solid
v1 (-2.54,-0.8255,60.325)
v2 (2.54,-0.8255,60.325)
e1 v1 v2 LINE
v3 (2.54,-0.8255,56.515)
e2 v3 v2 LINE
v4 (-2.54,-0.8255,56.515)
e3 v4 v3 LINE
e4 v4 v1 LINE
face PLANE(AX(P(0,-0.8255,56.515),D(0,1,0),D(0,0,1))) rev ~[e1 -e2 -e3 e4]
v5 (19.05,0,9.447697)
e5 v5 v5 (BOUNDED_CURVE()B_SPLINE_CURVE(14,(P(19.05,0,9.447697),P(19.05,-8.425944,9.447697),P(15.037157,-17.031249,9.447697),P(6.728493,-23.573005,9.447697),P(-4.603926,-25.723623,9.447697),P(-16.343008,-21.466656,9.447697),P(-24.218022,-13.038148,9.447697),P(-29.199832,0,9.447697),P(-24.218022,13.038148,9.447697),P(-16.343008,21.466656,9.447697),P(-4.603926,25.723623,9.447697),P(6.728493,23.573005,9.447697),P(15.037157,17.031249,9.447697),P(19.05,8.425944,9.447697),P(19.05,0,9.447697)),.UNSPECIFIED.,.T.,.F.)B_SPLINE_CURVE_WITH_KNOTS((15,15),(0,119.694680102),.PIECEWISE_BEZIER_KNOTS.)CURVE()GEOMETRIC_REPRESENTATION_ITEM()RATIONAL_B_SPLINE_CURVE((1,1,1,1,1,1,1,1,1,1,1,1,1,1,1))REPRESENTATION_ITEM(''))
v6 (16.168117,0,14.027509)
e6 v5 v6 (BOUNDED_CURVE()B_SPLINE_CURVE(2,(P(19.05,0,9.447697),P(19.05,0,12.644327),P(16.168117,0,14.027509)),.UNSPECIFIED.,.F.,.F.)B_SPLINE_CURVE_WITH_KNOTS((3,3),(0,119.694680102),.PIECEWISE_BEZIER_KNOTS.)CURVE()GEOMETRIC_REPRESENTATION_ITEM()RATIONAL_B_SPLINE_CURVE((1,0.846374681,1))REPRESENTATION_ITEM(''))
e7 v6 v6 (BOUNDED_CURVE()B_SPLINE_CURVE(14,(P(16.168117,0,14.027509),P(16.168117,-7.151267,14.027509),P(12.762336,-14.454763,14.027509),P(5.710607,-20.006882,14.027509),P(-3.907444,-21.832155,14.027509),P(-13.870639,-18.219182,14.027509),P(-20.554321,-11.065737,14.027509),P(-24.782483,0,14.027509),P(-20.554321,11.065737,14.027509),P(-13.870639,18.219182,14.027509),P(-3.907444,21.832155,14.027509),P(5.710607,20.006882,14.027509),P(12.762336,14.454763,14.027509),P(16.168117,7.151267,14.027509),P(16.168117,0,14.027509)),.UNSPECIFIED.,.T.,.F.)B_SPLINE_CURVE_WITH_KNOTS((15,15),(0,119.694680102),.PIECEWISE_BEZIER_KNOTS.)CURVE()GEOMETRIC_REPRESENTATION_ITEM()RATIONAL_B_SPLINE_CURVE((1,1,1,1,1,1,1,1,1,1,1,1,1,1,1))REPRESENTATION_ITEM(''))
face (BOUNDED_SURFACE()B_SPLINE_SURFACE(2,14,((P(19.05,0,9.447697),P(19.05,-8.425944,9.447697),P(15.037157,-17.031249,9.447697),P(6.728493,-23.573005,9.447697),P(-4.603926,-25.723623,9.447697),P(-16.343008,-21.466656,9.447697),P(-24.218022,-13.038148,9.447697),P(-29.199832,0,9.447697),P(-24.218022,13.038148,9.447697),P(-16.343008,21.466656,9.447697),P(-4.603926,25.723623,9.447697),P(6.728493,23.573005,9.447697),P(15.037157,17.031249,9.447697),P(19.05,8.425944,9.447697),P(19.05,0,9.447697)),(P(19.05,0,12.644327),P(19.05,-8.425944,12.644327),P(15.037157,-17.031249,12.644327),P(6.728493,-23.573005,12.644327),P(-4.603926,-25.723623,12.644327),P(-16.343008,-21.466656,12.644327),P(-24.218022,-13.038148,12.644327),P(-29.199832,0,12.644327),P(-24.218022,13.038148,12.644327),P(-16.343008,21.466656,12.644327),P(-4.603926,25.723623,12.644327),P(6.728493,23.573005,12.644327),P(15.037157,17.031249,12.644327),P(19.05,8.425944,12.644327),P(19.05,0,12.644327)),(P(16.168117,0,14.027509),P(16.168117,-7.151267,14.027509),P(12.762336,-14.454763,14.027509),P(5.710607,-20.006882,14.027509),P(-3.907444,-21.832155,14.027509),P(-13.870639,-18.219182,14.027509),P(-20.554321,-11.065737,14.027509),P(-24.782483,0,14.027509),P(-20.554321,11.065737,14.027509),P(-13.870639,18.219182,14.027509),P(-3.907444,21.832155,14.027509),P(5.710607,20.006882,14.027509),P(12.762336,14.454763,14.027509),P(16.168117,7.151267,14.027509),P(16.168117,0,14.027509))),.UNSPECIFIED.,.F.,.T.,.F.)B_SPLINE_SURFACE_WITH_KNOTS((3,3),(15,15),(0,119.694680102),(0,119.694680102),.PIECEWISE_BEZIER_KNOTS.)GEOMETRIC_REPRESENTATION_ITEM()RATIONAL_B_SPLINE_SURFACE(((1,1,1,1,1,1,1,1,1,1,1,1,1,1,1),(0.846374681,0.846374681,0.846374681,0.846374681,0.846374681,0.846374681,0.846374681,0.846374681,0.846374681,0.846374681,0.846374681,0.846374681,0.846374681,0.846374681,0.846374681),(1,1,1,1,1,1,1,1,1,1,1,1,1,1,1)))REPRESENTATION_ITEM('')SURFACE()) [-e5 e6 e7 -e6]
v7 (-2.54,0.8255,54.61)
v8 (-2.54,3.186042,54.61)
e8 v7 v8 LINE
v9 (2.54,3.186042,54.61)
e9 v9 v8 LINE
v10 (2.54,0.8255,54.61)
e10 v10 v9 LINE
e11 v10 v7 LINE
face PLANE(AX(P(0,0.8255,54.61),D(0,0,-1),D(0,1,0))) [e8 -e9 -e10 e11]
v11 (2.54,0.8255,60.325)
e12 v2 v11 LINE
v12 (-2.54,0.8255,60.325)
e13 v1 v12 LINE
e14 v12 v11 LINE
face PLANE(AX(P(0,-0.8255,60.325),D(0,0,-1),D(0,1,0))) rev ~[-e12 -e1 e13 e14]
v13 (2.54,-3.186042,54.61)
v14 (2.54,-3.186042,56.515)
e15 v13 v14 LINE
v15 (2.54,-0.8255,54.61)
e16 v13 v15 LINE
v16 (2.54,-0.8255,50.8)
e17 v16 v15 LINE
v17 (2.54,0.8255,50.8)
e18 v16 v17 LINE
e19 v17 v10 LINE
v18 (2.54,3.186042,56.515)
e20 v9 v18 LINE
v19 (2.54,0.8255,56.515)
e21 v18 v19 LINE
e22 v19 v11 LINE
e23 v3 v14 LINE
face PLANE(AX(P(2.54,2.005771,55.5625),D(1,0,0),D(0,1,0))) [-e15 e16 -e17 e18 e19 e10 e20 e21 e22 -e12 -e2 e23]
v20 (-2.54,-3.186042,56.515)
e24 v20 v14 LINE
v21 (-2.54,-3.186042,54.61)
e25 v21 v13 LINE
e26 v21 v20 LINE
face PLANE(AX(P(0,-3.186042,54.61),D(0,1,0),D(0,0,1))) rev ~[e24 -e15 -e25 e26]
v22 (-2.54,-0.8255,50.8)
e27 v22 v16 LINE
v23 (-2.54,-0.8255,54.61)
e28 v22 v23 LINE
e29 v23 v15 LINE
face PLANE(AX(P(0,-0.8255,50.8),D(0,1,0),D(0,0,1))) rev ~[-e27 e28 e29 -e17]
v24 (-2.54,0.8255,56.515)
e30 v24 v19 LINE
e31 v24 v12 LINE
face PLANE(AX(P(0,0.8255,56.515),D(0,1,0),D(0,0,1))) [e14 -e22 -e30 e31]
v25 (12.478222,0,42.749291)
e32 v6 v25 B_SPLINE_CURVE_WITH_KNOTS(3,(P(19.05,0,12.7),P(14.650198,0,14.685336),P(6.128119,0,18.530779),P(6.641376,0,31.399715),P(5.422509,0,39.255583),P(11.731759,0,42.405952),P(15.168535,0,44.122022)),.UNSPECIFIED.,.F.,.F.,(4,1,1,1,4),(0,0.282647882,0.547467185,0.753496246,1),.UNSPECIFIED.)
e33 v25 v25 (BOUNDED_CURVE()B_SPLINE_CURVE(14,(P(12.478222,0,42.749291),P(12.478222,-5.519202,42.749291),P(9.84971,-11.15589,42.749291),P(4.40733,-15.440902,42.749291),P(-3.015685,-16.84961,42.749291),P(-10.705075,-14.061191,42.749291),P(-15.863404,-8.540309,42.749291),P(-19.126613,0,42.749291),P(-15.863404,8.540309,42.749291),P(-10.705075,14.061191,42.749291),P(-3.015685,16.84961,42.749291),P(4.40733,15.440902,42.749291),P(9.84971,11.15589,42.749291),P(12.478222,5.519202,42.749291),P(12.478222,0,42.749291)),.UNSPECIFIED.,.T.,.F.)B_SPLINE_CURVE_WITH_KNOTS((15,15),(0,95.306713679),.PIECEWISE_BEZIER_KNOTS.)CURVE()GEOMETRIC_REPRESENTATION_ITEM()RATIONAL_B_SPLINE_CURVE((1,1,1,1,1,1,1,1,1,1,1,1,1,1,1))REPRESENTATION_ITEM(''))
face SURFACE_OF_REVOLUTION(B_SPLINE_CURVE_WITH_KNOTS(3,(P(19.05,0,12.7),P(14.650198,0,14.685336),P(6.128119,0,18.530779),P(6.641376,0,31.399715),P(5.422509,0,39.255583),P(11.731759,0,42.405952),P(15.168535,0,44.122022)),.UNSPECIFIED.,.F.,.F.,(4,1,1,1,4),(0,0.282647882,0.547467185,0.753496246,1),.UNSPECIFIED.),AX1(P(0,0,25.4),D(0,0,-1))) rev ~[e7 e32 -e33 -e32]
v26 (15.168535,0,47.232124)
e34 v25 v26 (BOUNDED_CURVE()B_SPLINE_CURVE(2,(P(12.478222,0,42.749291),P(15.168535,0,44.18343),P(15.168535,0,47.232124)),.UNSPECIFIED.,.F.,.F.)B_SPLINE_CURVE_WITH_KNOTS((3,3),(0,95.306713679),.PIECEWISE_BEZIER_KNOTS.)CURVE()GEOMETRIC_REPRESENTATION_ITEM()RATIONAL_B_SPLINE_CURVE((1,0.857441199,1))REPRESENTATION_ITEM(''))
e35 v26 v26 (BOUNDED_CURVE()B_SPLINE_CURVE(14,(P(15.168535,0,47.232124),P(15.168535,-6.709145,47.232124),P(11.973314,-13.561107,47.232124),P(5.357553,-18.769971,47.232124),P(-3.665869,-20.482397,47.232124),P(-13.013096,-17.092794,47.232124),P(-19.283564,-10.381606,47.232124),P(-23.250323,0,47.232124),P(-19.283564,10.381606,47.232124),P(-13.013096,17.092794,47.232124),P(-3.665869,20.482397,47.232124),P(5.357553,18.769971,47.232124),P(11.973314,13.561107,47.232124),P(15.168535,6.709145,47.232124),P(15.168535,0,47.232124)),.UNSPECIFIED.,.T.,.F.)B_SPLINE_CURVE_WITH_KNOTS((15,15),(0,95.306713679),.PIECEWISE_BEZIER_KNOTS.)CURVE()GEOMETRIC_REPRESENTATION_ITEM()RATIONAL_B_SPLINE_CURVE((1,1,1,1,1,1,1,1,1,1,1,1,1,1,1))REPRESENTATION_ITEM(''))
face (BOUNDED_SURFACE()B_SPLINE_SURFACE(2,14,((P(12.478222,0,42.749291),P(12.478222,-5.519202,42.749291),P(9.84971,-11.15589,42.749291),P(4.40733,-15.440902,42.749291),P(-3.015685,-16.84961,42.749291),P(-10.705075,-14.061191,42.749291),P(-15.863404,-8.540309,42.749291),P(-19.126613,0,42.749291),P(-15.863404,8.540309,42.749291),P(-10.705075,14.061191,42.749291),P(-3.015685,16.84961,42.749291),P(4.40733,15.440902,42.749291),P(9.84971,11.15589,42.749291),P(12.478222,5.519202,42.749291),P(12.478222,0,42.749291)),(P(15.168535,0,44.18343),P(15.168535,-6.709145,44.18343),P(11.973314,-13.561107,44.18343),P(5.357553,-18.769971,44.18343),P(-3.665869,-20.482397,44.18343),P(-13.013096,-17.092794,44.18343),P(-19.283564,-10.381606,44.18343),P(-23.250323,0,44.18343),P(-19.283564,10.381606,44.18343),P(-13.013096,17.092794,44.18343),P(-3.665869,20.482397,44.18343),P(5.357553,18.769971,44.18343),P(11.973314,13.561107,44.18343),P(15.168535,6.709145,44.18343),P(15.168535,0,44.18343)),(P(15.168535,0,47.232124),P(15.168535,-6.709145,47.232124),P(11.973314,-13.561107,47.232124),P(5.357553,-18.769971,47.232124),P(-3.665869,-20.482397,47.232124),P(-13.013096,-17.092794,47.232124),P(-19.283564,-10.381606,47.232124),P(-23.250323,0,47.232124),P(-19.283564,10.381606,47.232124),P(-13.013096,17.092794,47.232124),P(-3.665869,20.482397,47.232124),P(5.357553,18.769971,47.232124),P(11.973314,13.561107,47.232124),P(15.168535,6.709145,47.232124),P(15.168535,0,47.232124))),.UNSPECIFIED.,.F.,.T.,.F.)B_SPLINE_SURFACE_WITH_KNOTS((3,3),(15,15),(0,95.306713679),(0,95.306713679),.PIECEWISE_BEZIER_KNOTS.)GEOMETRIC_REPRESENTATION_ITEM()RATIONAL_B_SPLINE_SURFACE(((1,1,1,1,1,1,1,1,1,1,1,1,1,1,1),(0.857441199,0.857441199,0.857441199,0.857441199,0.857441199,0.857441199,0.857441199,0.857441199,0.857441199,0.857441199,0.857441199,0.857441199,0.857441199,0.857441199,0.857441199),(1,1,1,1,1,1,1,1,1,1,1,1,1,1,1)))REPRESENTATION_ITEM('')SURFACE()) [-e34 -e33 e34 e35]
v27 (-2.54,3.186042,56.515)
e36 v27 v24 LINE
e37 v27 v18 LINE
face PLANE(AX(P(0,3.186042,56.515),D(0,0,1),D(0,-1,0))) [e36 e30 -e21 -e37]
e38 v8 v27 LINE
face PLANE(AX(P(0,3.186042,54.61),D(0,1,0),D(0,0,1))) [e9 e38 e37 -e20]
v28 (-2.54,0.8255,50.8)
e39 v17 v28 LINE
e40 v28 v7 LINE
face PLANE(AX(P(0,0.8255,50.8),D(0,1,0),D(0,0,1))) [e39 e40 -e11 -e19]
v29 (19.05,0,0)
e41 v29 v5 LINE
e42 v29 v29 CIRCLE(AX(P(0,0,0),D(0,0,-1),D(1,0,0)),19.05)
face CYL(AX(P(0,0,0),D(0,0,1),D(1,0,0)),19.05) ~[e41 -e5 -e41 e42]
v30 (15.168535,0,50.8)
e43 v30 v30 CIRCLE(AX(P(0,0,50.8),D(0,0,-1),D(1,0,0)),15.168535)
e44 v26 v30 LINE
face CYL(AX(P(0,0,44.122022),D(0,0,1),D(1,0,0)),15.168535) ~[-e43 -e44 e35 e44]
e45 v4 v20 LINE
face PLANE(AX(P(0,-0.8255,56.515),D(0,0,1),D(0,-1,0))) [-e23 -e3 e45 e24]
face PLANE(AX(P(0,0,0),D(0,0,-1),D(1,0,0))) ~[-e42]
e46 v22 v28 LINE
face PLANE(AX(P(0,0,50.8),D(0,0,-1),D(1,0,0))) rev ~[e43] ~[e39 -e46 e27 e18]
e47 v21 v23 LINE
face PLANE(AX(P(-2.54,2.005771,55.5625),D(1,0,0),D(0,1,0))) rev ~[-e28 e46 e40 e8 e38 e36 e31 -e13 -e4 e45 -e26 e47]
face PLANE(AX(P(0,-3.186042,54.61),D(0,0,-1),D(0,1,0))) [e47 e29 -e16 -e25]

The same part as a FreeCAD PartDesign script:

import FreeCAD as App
import Part
import Sketcher
from FreeCAD import Vector
Q = App.Units.Quantity


def edges_at(feature, points):
    """Names of the edges that pass closest to the given points."""
    edges = feature.Shape.Edges
    near = lambda p: min(range(len(edges)), key=lambda i: edges[i].distToShape(Part.Vertex(*p))[0])
    return sorted({f"Edge{near(p) + 1}" for p in points})


def add_polygon(sketch, points):
    """Adds a closed chain of lines whose ends are joined by coincident constraints."""
    first, n = sketch.GeometryCount, len(points)
    for a, b in zip(points, points[1:] + points[:1]):
        sketch.addGeometry(Part.LineSegment(App.Vector(*a, 0), App.Vector(*b, 0)), False)
    for i in range(n):
        sketch.addConstraint(Sketcher.Constraint("Coincident", first + i, 2, first + (i + 1) % n, 1))

doc = App.newDocument("Part")
body = doc.addObject("PartDesign::Body", "Body")

# Sketch on XZ plane
sketch1 = body.newObject("Sketcher::SketchObject", "Sketch")
sketch1.AttachmentSupport = (doc.getObject("XZ_Plane"), [""])
sketch1.MapMode = "FlatFace"
sketch1.addGeometry([
    Part.LineSegment(Vector(0, 50.8, 0), Vector(0, 0, 0)),  # 0
    Part.LineSegment(Vector(0, 0, 0), Vector(19.05, 0, 0)),  # 1
    Part.LineSegment(Vector(19.05, 0, 0), Vector(19.05, 12.7, 0)),  # 2
    Part.BSplineCurve([Vector(19.05, 12.7, 0), Vector(14.650198, 14.685336, 0), Vector(6.128119, 18.530779, 0), Vector(6.641376, 31.399715, 0), Vector(5.422509, 39.255583, 0), Vector(11.731759, 42.405952, 0), Vector(15.168535, 44.122022, 0)], [4, 1, 1, 1, 4], [0, 0.282647882, 0.547467185, 0.753496246, 1], False, 3, [1, 1, 1, 1, 1, 1, 1], False),  # 3
    Part.LineSegment(Vector(15.168535, 44.122022, 0), Vector(15.168535, 50.8, 0)),  # 4
    Part.LineSegment(Vector(15.168535, 50.8, 0), Vector(0, 50.8, 0)),  # 5
], False)
sketch1.addConstraint([
    Sketcher.Constraint("Block", 3),
    Sketcher.Constraint("Coincident", 0, 2, 1, 1),
    Sketcher.Constraint("Coincident", 1, 2, 2, 1),
    Sketcher.Constraint("Coincident", 2, 2, 3, 1),
    Sketcher.Constraint("Coincident", 3, 2, 4, 1),
    Sketcher.Constraint("Coincident", 4, 2, 5, 1),
    Sketcher.Constraint("Coincident", 5, 2, 0, 1),
    Sketcher.Constraint("Vertical", 0),
    Sketcher.Constraint("Horizontal", 1),
    Sketcher.Constraint("Vertical", 2),
    Sketcher.Constraint("Vertical", 4),
    Sketcher.Constraint("Horizontal", 5),
    Sketcher.Constraint("Coincident", 0, 2, -1, 1),
    Sketcher.Constraint("DistanceY", 0, 2, 0, 1, Q("2 in")),
])
revolution = body.newObject("PartDesign::Revolution", "Revolution")
revolution.Profile = sketch1
revolution.ReferenceAxis = (sketch1, ["V_Axis"])
revolution.Angle = 360
doc.recompute()

fillet = body.newObject("PartDesign::Fillet", "Fillet")
fillet.Base = (revolution, edges_at(revolution, [(-19.05, 0, 12.7), (-15.169, 0, 44.122)]))
fillet.Radius = Q("0.2 in")

# Sketch on YZ plane
sketch2 = body.newObject("Sketcher::SketchObject", "Sketch001")
sketch2.AttachmentSupport = (doc.getObject("YZ_Plane"), [""])
sketch2.MapMode = "FlatFace"
add_polygon(sketch2, [(3.186042, 54.61), (3.186042, 56.515), (0.8255, 56.515), (0.8255, 60.325), (-0.8255, 60.325), (-0.8255, 56.515), (-3.186042, 56.515), (-3.186042, 54.61), (-0.8255, 54.61), (-0.8255, 50.8), (0.8255, 50.8), (0.8255, 54.61)])  # lines 0-11
sketch2.addConstraint([
    Sketcher.Constraint("Vertical", 0),
    Sketcher.Constraint("Horizontal", 1),
    Sketcher.Constraint("Vertical", 2),
    Sketcher.Constraint("Horizontal", 3),
    Sketcher.Constraint("Vertical", 4),
    Sketcher.Constraint("Horizontal", 5),
    Sketcher.Constraint("Vertical", 6),
    Sketcher.Constraint("Horizontal", 7),
    Sketcher.Constraint("Vertical", 8),
    Sketcher.Constraint("Horizontal", 9),
    Sketcher.Constraint("Vertical", 10),
    Sketcher.Constraint("Horizontal", 11),
    Sketcher.Constraint("Symmetric", 1, 2, 4, 2, -2),
    Sketcher.Constraint("Symmetric", 7, 2, 10, 2, -2),
    Sketcher.Constraint("Vertical", 4, 2, 7, 2),
    Sketcher.Constraint("Equal", 1, 5),
    Sketcher.Constraint("Equal", 4, 8),
    Sketcher.Constraint("DistanceY", -1, 1, 8, 2, Q("2 in")),
    Sketcher.Constraint("DistanceY", 2, 1, 2, 2, Q("0.15 in")),
    Sketcher.Constraint("DistanceX", 3, 2, 3, 1, Q("0.065 in")),
    Sketcher.Constraint("DistanceY", 0, 1, 0, 2, Q("0.075 in")),
    Sketcher.Constraint("DistanceX", 1, 2, 1, 1, Q("2.360542 mm")),
])
pad1 = body.newObject("PartDesign::Pad", "Pad")
pad1.Profile = sketch2
pad1.Type = "TwoLengths"
pad1.Length = Q("0.1 in")
pad1.Length2 = Q("0.1 in")

doc.recompute()
